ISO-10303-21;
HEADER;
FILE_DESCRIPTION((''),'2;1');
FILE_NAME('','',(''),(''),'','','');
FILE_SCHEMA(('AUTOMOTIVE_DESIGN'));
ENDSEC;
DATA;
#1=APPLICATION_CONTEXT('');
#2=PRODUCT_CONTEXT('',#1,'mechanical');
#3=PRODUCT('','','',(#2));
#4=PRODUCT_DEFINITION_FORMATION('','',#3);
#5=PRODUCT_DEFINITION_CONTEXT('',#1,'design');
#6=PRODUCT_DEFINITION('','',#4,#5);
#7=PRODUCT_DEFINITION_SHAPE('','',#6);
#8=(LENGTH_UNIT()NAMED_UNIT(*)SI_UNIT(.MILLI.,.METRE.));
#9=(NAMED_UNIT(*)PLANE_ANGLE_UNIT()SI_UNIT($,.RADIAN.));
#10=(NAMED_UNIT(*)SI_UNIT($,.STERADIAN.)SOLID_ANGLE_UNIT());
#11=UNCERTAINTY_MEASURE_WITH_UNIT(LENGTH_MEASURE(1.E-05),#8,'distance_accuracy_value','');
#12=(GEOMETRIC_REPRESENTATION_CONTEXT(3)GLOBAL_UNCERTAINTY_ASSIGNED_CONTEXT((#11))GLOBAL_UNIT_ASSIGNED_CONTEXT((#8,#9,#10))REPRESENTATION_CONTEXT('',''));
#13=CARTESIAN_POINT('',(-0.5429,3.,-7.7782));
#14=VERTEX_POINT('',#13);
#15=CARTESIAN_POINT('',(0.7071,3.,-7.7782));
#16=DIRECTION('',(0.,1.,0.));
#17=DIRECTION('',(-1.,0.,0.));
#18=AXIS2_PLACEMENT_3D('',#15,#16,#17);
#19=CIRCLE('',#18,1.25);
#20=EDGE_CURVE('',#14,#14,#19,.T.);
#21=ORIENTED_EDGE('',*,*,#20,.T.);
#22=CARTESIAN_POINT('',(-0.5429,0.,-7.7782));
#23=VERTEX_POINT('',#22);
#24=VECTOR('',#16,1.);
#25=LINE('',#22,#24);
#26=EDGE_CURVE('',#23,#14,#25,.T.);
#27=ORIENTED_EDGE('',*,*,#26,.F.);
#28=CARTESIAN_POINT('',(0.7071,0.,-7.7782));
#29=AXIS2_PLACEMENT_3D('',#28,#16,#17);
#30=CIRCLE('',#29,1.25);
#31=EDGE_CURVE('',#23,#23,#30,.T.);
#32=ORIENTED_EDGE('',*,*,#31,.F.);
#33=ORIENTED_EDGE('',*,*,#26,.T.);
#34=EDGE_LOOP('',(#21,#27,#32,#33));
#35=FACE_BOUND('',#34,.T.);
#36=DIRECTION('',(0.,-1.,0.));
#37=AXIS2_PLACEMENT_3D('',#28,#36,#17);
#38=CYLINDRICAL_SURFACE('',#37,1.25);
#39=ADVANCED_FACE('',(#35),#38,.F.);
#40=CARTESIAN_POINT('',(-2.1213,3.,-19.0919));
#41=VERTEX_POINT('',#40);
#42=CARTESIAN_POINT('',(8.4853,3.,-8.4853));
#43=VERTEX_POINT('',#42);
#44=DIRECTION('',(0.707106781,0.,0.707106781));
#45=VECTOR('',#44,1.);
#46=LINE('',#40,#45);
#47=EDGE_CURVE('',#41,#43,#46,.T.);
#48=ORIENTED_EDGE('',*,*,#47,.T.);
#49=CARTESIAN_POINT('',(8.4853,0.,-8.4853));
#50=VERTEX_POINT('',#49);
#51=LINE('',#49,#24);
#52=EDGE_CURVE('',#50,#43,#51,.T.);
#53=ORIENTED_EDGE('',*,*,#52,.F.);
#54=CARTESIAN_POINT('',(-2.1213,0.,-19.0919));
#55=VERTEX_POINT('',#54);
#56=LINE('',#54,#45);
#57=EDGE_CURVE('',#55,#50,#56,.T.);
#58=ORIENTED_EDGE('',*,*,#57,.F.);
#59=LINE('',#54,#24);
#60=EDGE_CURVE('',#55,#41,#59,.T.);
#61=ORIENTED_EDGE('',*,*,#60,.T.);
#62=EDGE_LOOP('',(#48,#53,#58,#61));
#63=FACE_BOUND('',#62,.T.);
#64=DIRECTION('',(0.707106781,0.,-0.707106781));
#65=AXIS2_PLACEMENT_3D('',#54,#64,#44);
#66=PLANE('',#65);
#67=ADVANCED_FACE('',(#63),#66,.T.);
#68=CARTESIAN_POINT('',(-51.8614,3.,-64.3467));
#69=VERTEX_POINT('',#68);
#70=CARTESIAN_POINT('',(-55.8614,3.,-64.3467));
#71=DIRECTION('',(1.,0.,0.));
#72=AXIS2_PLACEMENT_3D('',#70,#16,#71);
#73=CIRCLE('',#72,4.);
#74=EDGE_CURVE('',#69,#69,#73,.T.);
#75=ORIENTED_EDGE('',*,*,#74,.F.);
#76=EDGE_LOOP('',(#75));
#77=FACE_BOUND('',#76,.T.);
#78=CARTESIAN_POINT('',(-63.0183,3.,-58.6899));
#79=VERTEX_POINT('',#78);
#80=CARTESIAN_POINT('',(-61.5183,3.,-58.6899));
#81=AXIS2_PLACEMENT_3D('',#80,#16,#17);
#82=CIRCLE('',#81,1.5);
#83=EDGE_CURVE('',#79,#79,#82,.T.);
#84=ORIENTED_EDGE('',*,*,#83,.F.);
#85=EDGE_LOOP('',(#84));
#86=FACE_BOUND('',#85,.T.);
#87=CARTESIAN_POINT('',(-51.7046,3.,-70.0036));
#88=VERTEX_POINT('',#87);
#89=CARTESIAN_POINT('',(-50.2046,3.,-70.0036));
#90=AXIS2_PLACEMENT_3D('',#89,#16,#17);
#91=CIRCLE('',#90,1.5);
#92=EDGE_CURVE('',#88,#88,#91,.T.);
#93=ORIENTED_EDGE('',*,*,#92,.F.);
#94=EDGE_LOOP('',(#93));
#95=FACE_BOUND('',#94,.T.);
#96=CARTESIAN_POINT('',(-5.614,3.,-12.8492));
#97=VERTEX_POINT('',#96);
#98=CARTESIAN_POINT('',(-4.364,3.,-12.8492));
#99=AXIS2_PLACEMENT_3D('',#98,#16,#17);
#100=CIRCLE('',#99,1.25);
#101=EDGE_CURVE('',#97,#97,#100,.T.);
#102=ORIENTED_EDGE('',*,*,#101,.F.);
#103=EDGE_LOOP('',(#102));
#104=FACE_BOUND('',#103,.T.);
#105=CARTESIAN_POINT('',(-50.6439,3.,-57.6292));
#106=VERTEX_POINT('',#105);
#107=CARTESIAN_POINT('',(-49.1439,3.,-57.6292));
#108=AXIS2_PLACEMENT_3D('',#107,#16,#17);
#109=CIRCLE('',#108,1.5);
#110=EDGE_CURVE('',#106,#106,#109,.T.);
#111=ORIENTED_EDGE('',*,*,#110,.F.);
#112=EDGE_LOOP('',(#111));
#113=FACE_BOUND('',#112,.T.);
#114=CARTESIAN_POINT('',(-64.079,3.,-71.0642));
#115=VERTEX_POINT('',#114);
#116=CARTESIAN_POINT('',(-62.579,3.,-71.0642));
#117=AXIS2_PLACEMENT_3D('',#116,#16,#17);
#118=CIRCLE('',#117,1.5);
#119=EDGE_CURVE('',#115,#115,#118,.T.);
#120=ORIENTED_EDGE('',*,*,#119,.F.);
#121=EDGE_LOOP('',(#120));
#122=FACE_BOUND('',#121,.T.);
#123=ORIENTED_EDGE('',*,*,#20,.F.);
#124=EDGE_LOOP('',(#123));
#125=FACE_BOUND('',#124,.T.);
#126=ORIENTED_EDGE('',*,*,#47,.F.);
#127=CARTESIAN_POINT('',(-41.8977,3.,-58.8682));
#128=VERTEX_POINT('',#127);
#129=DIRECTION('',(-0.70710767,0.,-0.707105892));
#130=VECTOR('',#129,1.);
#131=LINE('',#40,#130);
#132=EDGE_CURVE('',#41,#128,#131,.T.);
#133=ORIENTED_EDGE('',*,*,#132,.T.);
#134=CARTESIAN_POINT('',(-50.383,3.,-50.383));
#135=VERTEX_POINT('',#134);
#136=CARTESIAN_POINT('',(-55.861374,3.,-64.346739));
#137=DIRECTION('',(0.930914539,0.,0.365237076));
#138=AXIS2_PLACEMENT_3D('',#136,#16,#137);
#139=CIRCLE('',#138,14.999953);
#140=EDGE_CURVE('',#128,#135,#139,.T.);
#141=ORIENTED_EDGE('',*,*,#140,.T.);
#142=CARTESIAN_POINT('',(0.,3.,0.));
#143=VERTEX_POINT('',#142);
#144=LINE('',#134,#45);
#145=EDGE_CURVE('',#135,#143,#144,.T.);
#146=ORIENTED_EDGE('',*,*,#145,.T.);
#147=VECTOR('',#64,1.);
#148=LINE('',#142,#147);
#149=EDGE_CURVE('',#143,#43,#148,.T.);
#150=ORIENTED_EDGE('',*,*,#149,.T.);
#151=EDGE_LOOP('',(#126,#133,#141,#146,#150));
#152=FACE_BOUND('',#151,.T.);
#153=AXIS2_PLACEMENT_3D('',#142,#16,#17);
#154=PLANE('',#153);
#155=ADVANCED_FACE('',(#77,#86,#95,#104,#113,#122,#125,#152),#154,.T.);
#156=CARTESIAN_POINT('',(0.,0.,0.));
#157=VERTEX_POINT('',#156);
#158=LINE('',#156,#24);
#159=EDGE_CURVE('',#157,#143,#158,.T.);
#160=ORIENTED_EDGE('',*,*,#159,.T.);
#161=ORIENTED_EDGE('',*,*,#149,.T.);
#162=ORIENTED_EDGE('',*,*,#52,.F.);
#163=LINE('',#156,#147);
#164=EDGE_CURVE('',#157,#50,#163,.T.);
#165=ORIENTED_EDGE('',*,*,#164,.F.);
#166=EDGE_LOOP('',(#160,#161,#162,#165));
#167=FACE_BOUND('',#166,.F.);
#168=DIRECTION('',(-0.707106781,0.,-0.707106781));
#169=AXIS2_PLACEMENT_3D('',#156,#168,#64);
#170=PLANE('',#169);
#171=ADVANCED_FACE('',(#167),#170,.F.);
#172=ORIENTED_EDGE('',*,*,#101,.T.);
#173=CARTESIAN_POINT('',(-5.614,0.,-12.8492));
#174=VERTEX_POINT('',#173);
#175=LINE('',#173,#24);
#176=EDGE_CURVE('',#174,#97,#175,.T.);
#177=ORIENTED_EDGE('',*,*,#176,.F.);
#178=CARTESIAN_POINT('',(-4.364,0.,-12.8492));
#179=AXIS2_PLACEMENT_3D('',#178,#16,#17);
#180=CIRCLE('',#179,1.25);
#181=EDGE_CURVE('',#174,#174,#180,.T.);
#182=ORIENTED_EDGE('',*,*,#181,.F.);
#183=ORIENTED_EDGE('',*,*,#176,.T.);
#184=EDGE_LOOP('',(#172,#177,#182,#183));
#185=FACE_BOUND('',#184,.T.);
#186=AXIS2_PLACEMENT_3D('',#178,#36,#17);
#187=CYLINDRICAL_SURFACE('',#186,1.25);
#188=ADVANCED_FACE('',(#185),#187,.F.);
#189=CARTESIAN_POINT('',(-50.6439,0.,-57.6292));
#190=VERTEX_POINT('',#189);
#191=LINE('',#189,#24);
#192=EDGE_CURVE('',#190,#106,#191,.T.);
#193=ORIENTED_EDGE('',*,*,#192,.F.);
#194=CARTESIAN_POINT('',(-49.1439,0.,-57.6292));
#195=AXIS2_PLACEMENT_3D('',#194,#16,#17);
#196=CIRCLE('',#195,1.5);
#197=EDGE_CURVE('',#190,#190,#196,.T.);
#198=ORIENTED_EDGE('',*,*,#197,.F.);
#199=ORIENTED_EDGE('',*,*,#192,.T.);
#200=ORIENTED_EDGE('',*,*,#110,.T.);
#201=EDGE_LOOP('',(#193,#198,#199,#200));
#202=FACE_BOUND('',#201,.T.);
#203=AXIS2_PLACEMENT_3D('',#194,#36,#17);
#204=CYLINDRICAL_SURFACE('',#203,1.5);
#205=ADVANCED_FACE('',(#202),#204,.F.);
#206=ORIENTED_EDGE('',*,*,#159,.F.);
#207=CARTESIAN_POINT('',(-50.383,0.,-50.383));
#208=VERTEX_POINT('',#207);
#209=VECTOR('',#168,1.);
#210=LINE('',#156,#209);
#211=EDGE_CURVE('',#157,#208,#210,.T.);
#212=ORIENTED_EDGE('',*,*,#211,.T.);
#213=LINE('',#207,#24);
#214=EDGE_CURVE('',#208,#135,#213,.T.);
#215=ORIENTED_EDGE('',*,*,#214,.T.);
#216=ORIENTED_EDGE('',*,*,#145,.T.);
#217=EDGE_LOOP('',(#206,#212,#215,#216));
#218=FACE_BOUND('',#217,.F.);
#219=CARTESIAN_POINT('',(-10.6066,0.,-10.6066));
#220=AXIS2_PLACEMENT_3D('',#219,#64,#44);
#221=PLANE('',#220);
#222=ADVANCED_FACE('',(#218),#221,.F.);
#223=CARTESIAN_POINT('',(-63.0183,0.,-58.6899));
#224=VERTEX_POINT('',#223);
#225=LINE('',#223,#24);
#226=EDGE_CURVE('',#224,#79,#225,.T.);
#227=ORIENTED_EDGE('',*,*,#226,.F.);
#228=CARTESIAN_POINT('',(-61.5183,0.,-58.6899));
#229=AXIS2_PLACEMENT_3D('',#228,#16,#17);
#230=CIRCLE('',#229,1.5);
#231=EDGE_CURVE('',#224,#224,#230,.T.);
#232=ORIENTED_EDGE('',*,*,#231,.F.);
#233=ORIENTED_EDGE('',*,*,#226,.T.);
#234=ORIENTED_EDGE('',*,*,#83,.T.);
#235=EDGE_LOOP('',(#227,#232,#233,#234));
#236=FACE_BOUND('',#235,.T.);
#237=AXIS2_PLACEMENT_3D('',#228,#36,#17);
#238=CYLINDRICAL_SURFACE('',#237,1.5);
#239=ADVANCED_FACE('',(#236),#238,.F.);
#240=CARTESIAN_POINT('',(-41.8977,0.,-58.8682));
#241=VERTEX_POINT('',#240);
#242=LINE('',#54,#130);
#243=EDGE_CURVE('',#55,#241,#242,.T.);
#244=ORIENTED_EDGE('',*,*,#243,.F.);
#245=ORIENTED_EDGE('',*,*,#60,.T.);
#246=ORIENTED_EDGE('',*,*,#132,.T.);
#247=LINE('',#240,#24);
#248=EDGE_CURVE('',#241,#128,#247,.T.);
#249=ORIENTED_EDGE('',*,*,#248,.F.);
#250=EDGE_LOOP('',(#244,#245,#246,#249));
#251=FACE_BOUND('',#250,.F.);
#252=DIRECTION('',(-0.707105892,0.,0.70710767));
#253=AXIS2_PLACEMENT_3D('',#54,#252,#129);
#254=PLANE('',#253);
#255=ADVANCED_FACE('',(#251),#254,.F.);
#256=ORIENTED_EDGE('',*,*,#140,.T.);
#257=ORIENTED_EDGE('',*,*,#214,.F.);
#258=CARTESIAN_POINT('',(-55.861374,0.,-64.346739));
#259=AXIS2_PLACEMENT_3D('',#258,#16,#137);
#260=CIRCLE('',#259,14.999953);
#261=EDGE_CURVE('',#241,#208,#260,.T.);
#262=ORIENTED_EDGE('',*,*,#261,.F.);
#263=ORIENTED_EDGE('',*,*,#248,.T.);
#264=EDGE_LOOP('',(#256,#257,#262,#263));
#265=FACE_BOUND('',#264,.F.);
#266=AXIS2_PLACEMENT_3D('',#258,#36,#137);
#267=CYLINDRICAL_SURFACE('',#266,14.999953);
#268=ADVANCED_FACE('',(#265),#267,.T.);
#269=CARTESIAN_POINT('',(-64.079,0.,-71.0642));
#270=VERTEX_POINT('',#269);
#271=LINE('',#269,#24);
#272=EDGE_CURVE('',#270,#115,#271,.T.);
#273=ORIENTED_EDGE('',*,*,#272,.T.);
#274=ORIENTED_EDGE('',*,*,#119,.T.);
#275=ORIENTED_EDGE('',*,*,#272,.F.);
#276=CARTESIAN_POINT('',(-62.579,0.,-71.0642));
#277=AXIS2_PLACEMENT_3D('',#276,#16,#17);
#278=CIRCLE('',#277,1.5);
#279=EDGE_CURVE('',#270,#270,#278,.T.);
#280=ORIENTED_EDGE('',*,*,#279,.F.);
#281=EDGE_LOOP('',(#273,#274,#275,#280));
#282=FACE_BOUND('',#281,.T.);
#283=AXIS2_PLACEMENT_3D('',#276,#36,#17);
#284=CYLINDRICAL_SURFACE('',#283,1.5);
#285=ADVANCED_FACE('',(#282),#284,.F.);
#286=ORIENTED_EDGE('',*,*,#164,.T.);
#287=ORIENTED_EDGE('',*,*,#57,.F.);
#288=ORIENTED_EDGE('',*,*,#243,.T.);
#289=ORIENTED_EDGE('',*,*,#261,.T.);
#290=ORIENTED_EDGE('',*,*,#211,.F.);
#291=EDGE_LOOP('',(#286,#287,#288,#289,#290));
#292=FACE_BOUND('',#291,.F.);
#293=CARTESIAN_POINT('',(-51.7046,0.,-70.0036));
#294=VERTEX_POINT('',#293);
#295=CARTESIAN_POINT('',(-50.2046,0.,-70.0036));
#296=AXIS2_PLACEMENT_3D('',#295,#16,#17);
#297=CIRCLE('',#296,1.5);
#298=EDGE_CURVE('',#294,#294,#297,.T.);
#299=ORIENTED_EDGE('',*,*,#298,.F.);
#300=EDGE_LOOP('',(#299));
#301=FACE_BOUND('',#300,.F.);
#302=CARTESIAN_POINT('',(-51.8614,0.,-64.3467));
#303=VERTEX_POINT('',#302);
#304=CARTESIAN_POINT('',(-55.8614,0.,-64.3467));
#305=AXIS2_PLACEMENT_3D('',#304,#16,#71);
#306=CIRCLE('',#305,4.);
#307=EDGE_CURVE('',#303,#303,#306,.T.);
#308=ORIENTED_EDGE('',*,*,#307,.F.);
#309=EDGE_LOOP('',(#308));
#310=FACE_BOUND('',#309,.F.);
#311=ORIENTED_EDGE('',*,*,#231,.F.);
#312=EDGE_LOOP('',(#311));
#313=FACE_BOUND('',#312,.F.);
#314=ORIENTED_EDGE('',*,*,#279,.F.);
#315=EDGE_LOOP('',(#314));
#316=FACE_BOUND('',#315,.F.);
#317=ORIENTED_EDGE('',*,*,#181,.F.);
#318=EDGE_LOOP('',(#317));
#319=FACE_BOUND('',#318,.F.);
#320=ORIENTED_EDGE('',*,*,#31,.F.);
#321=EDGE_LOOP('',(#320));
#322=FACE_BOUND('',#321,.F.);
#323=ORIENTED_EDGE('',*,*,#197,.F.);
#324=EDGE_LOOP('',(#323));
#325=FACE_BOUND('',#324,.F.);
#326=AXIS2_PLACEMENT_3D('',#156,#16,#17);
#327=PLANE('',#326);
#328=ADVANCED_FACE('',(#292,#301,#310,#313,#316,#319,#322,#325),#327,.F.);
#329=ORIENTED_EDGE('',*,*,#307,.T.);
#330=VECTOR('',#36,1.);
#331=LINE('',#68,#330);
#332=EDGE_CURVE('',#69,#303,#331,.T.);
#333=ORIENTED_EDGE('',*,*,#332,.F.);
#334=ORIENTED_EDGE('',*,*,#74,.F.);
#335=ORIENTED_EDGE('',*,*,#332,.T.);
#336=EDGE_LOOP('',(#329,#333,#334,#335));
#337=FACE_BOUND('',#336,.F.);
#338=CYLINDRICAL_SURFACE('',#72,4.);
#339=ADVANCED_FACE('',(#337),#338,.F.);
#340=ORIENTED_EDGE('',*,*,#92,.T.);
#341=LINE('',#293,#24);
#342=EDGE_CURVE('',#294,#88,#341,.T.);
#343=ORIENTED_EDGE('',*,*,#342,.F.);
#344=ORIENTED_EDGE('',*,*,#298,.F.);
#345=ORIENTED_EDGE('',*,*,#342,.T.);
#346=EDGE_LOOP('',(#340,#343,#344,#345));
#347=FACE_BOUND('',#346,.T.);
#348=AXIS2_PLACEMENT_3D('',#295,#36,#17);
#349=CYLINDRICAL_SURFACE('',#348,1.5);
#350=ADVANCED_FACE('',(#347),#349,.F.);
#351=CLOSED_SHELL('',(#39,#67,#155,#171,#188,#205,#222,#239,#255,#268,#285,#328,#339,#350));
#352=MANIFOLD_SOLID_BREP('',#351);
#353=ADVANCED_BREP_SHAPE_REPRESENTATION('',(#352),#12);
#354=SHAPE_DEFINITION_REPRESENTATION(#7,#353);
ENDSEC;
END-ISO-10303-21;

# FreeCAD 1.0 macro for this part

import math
import FreeCAD as App
import Part
import Sketcher
Q = App.Units.Quantity

doc = App.newDocument("Part")
body = doc.addObject("PartDesign::Body", "Body")

sketch1 = body.newObject("Sketcher::SketchObject", "Sketch")
sketch1.AttachmentSupport = (doc.getObject("XZ_Plane"), [""])
sketch1.MapMode = "FlatFace"
sketch1.addGeometry([
    Part.LineSegment(App.Vector(8.5, -8.5, 0), App.Vector(-2.1, -19.1, 0)),
    Part.LineSegment(App.Vector(-2.1, -19.1, 0), App.Vector(-41.9, -58.9, 0)),
    Part.ArcOfCircle(Part.Circle(App.Vector(-55.9, -64.3, 0), App.Vector(0, 0, 1), 15), math.radians(69), math.radians(381)),
    Part.LineSegment(App.Vector(-50.4, -50.4, 0), App.Vector(0, 0, 0)),
    Part.LineSegment(App.Vector(0, 0, 0), App.Vector(8.5, -8.5, 0)),
    Part.Circle(App.Vector(-50.2, -70, 0), App.Vector(0, 0, 1), 1.5),
    Part.Circle(App.Vector(-62.6, -71.1, 0), App.Vector(0, 0, 1), 1.5),
    Part.Circle(App.Vector(-49.1, -57.6, 0), App.Vector(0, 0, 1), 1.5),
    Part.Circle(App.Vector(-61.5, -58.7, 0), App.Vector(0, 0, 1), 1.5),
    Part.Circle(App.Vector(-4.4, -12.8, 0), App.Vector(0, 0, 1), 1.2),
    Part.Circle(App.Vector(0.7, -7.8, 0), App.Vector(0, 0, 1), 1.2),
], False)
sketch1.addConstraint([
    Sketcher.Constraint("Coincident", 0, 2, 1, 1),
    Sketcher.Constraint("Coincident", 1, 2, 2, 2),
    Sketcher.Constraint("Coincident", 2, 1, 3, 1),
    Sketcher.Constraint("Coincident", 3, 2, 4, 1),
    Sketcher.Constraint("Coincident", 4, 2, 0, 1),
    Sketcher.Constraint("Coincident", 3, 2, -1, 1),
    Sketcher.Constraint("Equal", 5, 6),
    Sketcher.Constraint("Equal", 6, 7),
    Sketcher.Constraint("Equal", 7, 8),
    Sketcher.Constraint("Equal", 9, 10),
    Sketcher.Constraint("Parallel", 0, 1),
    Sketcher.Constraint("Parallel", 1, 3),
    Sketcher.Constraint("Perpendicular", 3, 4),
    Sketcher.Constraint("Diameter", 5, 3.0),
    Sketcher.Constraint("Radius", 2, 15.0),
    Sketcher.Constraint("Diameter", 9, 2.5),
    Sketcher.Constraint("Angle", 0, Q("-135 deg")),
    Sketcher.Constraint("Distance", 0, 15.0),
    Sketcher.Constraint("Distance", 4, 12.0),
    Sketcher.Constraint("DistanceY", 8, 3, -1, 1, 58.69),
    Sketcher.Constraint("DistanceX", 7, 3, 9, 3, 44.78),
    Sketcher.Constraint("DistanceY", 7, 3, 9, 3, 44.78),
    Sketcher.Constraint("DistanceX", 2, 3, 0, 2, 53.74),
    Sketcher.Constraint("DistanceX", 6, 3, -1, 1, 62.579),
    Sketcher.Constraint("DistanceX", 7, 3, -1, 1, 49.144),
    Sketcher.Constraint("DistanceX", -1, 1, 10, 3, 0.707),
    Sketcher.Constraint("DistanceX", 2, 1, -1, 1, 50.383),
    Sketcher.Constraint("DistanceY", 5, 3, 2, 3, 5.657),
    Sketcher.Constraint("DistanceY", 6, 3, 7, 3, 13.435),
    Sketcher.Constraint("DistanceX", 8, 3, 2, 3, 5.657),
    Sketcher.Constraint("DistanceY", 9, 3, 10, 3, 5.071),
    Sketcher.Constraint("DistanceY", 1, 2, 7, 3, 1.239),
    Sketcher.Constraint("DistanceX", 5, 3, 1, 2, 8.307),
])
pad1 = body.newObject("PartDesign::Pad", "Pad")
pad1.Profile = sketch1
pad1.Length = 3
pad1.Reversed = True

sketch2 = body.newObject("Sketcher::SketchObject", "Sketch001")
sketch2.AttachmentSupport = (doc.getObject("XZ_Plane"), [""])
sketch2.MapMode = "FlatFace"
sketch2.AttachmentOffset = App.Placement(App.Vector(0, 0, -3), App.Rotation())
sketch2.addGeometry(Part.Circle(App.Vector(-55.9, -64.3, 0), App.Vector(0, 0, 1), 4), False)
sketch2.addConstraint([
    Sketcher.Constraint("Diameter", 0, 8.0),
    Sketcher.Constraint("DistanceX", 0, 3, -1, 1, 55.8614),
    Sketcher.Constraint("DistanceY", 0, 3, -1, 1, 64.3467),
])
pocket1 = body.newObject("PartDesign::Pocket", "Pocket")
pocket1.Profile = sketch2
pocket1.Length = 3
pocket1.Reversed = True

doc.recompute()
